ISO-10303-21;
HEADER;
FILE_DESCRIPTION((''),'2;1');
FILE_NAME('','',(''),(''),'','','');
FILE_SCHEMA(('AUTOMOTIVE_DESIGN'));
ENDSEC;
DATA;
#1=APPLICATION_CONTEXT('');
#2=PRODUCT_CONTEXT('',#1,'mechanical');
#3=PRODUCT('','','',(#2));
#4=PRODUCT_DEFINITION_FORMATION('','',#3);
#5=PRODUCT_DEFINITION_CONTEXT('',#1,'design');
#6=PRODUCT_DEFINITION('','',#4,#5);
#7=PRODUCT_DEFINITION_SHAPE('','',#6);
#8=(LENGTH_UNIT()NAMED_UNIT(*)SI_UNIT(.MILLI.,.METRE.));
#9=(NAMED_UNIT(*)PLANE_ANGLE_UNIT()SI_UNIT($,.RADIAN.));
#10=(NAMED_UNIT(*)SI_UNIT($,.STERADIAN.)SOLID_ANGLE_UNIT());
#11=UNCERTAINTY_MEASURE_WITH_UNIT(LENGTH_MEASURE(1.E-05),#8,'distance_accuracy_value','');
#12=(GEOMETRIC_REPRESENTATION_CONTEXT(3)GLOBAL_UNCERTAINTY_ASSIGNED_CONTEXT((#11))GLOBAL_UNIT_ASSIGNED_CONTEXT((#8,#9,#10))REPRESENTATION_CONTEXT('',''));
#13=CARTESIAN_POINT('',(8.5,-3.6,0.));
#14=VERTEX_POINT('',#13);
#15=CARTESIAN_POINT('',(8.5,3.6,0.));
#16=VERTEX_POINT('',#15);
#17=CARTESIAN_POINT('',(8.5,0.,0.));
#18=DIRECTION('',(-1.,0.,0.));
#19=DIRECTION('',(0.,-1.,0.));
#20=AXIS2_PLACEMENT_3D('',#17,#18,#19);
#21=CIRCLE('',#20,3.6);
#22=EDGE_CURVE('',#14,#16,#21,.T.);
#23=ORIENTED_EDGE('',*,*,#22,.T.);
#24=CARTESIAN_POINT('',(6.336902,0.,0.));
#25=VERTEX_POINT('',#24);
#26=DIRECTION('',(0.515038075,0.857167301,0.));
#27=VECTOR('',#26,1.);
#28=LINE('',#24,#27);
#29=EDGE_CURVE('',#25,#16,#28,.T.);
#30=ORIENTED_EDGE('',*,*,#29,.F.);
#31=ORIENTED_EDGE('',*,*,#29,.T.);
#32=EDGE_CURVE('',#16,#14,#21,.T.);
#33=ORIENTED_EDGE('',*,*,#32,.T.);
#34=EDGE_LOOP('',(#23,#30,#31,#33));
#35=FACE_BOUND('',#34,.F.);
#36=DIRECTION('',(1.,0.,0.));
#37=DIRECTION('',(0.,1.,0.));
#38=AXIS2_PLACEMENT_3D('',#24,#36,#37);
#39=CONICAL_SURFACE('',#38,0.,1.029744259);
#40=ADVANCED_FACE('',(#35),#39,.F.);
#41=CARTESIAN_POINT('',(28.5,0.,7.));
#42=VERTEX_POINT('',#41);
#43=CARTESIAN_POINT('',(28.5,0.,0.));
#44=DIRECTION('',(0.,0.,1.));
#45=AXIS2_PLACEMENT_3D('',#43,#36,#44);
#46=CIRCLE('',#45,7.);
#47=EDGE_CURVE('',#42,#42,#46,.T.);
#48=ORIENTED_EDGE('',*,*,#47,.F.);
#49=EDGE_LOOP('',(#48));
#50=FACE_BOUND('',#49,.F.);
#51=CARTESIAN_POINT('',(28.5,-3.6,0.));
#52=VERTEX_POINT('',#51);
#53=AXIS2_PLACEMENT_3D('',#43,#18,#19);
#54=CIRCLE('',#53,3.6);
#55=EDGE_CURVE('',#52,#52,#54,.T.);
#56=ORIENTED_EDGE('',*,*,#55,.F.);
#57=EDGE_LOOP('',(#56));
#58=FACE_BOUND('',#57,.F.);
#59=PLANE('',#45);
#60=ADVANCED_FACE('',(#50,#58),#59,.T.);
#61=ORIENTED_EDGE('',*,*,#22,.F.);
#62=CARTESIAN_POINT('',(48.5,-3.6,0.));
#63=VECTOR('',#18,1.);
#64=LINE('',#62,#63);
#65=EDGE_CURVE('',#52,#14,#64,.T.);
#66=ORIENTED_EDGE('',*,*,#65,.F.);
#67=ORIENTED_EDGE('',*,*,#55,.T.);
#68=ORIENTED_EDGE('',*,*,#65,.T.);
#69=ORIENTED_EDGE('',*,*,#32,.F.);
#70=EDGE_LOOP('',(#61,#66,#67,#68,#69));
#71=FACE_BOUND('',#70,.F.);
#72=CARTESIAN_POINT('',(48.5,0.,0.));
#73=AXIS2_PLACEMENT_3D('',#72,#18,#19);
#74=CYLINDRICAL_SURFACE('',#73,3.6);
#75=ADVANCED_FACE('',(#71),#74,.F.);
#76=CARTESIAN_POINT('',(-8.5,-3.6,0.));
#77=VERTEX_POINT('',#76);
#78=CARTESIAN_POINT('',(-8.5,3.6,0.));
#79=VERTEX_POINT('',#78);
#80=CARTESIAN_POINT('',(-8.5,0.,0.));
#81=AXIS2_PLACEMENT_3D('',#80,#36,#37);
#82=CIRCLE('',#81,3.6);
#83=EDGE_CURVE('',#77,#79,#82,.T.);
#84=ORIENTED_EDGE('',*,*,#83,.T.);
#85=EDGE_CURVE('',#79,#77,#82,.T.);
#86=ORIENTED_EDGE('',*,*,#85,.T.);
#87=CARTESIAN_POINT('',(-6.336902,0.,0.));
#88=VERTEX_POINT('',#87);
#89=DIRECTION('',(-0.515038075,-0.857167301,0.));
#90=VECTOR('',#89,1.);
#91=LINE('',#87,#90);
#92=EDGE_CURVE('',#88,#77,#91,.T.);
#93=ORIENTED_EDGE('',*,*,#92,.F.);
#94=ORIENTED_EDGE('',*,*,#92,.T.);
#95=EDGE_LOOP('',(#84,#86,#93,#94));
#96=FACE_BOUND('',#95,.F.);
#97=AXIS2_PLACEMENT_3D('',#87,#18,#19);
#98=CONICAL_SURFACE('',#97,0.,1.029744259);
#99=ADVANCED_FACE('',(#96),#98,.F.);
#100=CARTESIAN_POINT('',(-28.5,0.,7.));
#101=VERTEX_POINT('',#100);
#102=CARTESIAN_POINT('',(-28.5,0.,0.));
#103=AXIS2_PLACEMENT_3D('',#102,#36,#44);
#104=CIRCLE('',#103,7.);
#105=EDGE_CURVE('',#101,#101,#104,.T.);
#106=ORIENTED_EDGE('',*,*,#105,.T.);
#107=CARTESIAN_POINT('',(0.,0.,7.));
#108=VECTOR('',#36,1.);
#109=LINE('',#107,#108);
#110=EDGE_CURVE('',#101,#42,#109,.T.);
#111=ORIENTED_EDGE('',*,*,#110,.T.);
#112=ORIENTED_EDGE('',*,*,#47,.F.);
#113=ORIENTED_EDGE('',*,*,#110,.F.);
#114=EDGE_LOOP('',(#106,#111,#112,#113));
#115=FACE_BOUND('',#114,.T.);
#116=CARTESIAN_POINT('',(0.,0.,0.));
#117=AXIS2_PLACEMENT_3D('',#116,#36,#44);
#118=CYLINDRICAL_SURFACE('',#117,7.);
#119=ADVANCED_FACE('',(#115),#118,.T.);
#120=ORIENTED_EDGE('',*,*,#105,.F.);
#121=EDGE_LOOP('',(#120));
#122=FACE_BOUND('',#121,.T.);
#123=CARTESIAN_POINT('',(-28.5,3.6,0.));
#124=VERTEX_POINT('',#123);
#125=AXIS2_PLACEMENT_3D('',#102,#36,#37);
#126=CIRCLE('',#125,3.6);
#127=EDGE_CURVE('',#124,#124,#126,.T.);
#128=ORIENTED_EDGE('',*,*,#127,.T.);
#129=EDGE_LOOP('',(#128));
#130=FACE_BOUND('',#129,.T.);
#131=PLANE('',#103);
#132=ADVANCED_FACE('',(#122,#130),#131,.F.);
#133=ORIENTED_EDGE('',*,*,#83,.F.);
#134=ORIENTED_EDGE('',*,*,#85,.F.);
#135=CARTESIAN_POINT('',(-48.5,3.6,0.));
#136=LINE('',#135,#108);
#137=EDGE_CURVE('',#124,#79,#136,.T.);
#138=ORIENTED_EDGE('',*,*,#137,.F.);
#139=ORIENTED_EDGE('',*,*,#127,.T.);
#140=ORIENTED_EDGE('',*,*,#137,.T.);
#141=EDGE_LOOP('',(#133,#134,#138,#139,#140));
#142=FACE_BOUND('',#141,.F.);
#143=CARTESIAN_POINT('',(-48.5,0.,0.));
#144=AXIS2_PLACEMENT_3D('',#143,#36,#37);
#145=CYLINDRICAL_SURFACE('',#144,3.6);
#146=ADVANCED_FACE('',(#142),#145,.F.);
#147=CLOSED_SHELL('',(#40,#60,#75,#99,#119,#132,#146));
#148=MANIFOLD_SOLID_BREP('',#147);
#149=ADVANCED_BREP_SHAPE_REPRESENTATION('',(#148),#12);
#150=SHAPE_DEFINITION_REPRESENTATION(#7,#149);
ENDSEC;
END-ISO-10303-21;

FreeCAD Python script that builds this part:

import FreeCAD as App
import Part
import Sketcher

V = App.Vector
Q = App.Units.Quantity


def add_polygon(sketch, points):
    """Adds a closed chain of lines whose ends are joined by coincident constraints."""
    first, n = sketch.GeometryCount, len(points)
    for a, b in zip(points, points[1:] + points[:1]):
        sketch.addGeometry(Part.LineSegment(App.Vector(*a, 0), App.Vector(*b, 0)), False)
    for i in range(n):
        sketch.addConstraint(Sketcher.Constraint("Coincident", first + i, 2, first + (i + 1) % n, 1))

doc = App.newDocument("Part")
params = doc.addObject("Spreadsheet::Sheet", "Params")
for row, (alias, value) in enumerate([
    ("sketch1_width", "57 mm"),
    ("sketch1_height", "7 mm"),
    ("revolution_angle", "360 deg"),
    ("sketch2_diameter", "7.2 mm"),
    ("hole_diameter", "7.2 mm"),
    ("hole_depth", "20 mm"),
    ("sketch3_diameter", "7.2 mm"),
    ("hole2_diameter", "7.2 mm"),
    ("hole2_depth", "20 mm"),
], start=1):
    params.set(f"A{row}", alias)
    params.set(f"B{row}", "=" + value)
    params.setAlias(f"B{row}", alias)

body = doc.addObject("PartDesign::Body", "Body")

sketch1 = body.newObject("Sketcher::SketchObject", "Sketch")
sketch1.AttachmentSupport = (doc.getObject("XZ_Plane"), [""])
sketch1.MapMode = "FlatFace"
add_polygon(sketch1, [(-28, 7), (-28, 0), (28, 0), (28, 7)])
sketch1.addConstraint([
    Sketcher.Constraint("Vertical", 0),
    Sketcher.Constraint("Horizontal", 1),
    Sketcher.Constraint("Vertical", 2),
    Sketcher.Constraint("Horizontal", 3),
    Sketcher.Constraint("Symmetric", 0, 2, 1, 2, -1, 1),
    Sketcher.Constraint("DistanceX", 1, 1, 1, 2, Q("57 mm")),
    Sketcher.Constraint("DistanceY", 0, 2, 0, 1, Q("7 mm")),
])
sketch1.setExpression("Constraints[9]", "Params.sketch1_width")
sketch1.setExpression("Constraints[10]", "Params.sketch1_height")
revolution = body.newObject("PartDesign::Revolution", "Revolution")
revolution.Profile = sketch1
revolution.ReferenceAxis = (sketch1, ["H_Axis"])
revolution.setExpression("Angle", "Params.revolution_angle")

sketch2 = body.newObject("Sketcher::SketchObject", "Sketch001")
sketch2.AttachmentSupport = (doc.getObject("YZ_Plane"), [""])
sketch2.MapMode = "FlatFace"
sketch2.AttachmentOffset = App.Placement(V(0, 0, 28.5), App.Rotation())
sketch2.addGeometry(Part.Circle(V(0, 0, 0), V(0, 0, 1), 3.6), False)
sketch2.addConstraint([
    Sketcher.Constraint("Coincident", 0, 3, -1, 1),
    Sketcher.Constraint("Diameter", 0, Q("7.2 mm")),
])
sketch2.setExpression("Constraints[1]", "Params.sketch2_diameter")
doc.recompute()
hole = body.newObject("PartDesign::Hole", "Hole")
hole.Profile = sketch2
hole.ThreadType = "None"
hole.setExpression("Diameter", "Params.hole_diameter")
hole.DepthType = "Dimension"
hole.setExpression("Depth", "Params.hole_depth")
hole.DrillPoint = "Angled"
hole.DrillPointAngle = 118

sketch3 = body.newObject("Sketcher::SketchObject", "Sketch002")
sketch3.AttachmentSupport = (doc.getObject("YZ_Plane"), [""])
sketch3.MapMode = "FlatFace"
sketch3.AttachmentOffset = App.Placement(V(0, 0, -28.5), App.Rotation())
sketch3.addGeometry(Part.Circle(V(0, 0, 0), V(0, 0, 1), 3.6), False)
sketch3.addConstraint([
    Sketcher.Constraint("Coincident", 0, 3, -1, 1),
    Sketcher.Constraint("Diameter", 0, Q("7.2 mm")),
])
sketch3.setExpression("Constraints[1]", "Params.sketch3_diameter")
doc.recompute()
hole2 = body.newObject("PartDesign::Hole", "Hole001")
hole2.Profile = sketch3
hole2.ThreadType = "None"
hole2.setExpression("Diameter", "Params.hole2_diameter")
hole2.DepthType = "Dimension"
hole2.setExpression("Depth", "Params.hole2_depth")
hole2.DrillPoint = "Angled"
hole2.DrillPointAngle = 118
hole2.Reversed = True

doc.recompute()
